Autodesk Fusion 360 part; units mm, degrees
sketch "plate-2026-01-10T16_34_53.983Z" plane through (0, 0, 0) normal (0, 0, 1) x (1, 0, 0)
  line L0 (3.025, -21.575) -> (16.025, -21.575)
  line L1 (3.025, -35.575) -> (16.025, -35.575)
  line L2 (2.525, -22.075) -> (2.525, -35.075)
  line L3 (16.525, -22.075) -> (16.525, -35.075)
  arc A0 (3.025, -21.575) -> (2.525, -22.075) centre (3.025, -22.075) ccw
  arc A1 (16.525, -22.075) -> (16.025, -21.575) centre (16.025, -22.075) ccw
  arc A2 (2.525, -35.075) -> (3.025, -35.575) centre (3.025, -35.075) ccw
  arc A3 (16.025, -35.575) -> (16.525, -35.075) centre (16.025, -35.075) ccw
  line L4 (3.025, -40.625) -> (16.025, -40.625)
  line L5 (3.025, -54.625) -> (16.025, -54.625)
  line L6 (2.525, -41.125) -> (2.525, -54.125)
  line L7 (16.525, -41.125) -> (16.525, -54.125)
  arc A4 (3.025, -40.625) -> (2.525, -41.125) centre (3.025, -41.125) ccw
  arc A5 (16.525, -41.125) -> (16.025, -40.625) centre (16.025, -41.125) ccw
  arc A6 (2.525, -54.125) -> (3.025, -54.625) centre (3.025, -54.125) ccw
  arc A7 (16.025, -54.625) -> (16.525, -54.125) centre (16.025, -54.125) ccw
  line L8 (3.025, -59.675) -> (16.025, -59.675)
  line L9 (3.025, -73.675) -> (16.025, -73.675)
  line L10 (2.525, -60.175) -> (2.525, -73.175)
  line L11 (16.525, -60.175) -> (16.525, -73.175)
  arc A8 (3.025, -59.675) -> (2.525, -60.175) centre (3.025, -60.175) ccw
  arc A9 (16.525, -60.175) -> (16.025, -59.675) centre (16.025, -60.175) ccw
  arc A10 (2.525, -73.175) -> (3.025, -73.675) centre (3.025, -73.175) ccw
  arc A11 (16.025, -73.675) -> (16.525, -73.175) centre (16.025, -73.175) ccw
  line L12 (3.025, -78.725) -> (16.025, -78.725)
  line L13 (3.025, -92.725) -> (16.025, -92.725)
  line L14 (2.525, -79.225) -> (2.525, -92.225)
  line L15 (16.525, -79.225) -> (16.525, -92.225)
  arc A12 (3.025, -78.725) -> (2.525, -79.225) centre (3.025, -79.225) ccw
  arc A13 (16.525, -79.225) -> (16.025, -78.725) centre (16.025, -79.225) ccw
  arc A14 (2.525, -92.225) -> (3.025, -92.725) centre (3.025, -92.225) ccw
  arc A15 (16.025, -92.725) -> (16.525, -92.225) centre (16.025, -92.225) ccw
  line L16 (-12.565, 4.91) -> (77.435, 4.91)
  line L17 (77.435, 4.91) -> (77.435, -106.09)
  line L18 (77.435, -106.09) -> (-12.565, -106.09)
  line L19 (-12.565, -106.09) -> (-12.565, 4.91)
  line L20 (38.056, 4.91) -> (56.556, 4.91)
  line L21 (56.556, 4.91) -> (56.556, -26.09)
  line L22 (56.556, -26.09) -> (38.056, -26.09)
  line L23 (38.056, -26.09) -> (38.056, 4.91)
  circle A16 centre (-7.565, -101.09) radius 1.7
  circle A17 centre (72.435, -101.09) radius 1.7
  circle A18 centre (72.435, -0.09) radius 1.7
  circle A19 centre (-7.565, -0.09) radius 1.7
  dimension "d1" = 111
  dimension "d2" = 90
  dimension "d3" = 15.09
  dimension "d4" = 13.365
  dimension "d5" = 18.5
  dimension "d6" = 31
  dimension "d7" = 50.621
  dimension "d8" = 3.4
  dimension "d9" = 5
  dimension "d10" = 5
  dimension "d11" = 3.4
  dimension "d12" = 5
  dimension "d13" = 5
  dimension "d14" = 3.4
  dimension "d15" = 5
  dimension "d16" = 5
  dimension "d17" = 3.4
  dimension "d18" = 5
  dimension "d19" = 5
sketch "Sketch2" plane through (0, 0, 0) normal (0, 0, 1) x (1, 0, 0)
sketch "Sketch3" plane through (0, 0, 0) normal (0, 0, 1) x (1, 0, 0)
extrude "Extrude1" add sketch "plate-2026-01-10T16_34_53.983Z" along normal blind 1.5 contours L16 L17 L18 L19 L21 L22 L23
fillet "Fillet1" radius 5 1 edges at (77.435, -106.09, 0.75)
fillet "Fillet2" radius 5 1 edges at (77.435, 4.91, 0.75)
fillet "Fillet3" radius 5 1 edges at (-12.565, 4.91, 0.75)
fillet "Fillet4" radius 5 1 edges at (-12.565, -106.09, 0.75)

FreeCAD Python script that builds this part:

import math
import FreeCAD as App
import Part
import Sketcher
from FreeCAD import Vector


def edges_at(feature, points):
    """Names of the edges that pass closest to the given points."""
    edges = feature.Shape.Edges
    near = lambda p: min(range(len(edges)), key=lambda i: edges[i].distToShape(Part.Vertex(*p))[0])
    return sorted({f"Edge{near(p) + 1}" for p in points})


def add_polygon(sketch, points):
    """Adds a closed chain of lines whose ends are joined by coincident constraints."""
    first, n = sketch.GeometryCount, len(points)
    for a, b in zip(points, points[1:] + points[:1]):
        sketch.addGeometry(Part.LineSegment(App.Vector(*a, 0), App.Vector(*b, 0)), False)
    for i in range(n):
        sketch.addConstraint(Sketcher.Constraint("Coincident", first + i, 2, first + (i + 1) % n, 1))

doc = App.newDocument("Part")
params = doc.addObject("Spreadsheet::Sheet", "Params")
for row, (alias, value) in enumerate([
    ("sketch1_diameter", "3.4 mm"),
    ("sketch1_width", "90 mm"),
    ("sketch1_height", "111 mm"),
    ("sketch1_height2", "31 mm"),
    ("sketch1_width2", "18.5 mm"),
    ("pad1_length", "1.5 mm"),
    ("fillet_radius", "5 mm"),
    ("fillet2_radius", "5 mm"),
    ("fillet3_radius", "5 mm"),
    ("fillet4_radius", "5 mm"),
], start=1):
    params.set(f"A{row}", alias)
    params.set(f"B{row}", "=" + value)
    params.setAlias(f"B{row}", alias)

body = doc.addObject("PartDesign::Body", "Body")

# Sketch on XY plane
sketch1 = doc.addObject("Sketcher::SketchObject", "Sketch")
body.addObject(sketch1)
sketch1.AttachmentSupport = (doc.XY_Plane, [""])
sketch1.MapMode = "FlatFace"
add_polygon(sketch1, [(38.1, 4.9), (-12.6, 4.9), (-12.6, -106.1), (77.4, -106.1), (77.4, 4.9), (56.6, 4.9), (56.6, -26.1), (38.1, -26.1)])  # lines 0-7
sketch1.addGeometry(Part.Circle(Vector(-7.6, -101.1, 0), Vector(0, 0, 1), 1.7), False)  # 8
sketch1.addGeometry(Part.ArcOfCircle(Part.Circle(Vector(3, -79.2, 0), Vector(0, 0, 1), 0.5), math.radians(90), math.radians(180)), False)  # 9
sketch1.addGeometry(Part.LineSegment(Vector(3, -78.7, 0), Vector(16, -78.7, 0)), False)  # 10
sketch1.addGeometry(Part.ArcOfCircle(Part.Circle(Vector(16, -79.2, 0), Vector(0, 0, 1), 0.5), math.radians(0), math.radians(90)), False)  # 11
sketch1.addGeometry(Part.LineSegment(Vector(16.5, -79.2, 0), Vector(16.5, -92.2, 0)), False)  # 12
sketch1.addGeometry(Part.ArcOfCircle(Part.Circle(Vector(16, -92.2, 0), Vector(0, 0, 1), 0.5), math.radians(-90), math.radians(0)), False)  # 13
sketch1.addGeometry(Part.LineSegment(Vector(16, -92.7, 0), Vector(3, -92.7, 0)), False)  # 14
sketch1.addGeometry(Part.ArcOfCircle(Part.Circle(Vector(3, -92.2, 0), Vector(0, 0, 1), 0.5), math.radians(180), math.radians(270)), False)  # 15
sketch1.addGeometry(Part.LineSegment(Vector(2.5, -92.2, 0), Vector(2.5, -79.2, 0)), False)  # 16
sketch1.addGeometry(Part.ArcOfCircle(Part.Circle(Vector(3, -60.2, 0), Vector(0, 0, 1), 0.5), math.radians(90), math.radians(180)), False)  # 17
sketch1.addGeometry(Part.LineSegment(Vector(3, -59.7, 0), Vector(16, -59.7, 0)), False)  # 18
sketch1.addGeometry(Part.ArcOfCircle(Part.Circle(Vector(16, -60.2, 0), Vector(0, 0, 1), 0.5), math.radians(0), math.radians(90)), False)  # 19
sketch1.addGeometry(Part.LineSegment(Vector(16.5, -60.2, 0), Vector(16.5, -73.2, 0)), False)  # 20
sketch1.addGeometry(Part.ArcOfCircle(Part.Circle(Vector(16, -73.2, 0), Vector(0, 0, 1), 0.5), math.radians(-90), math.radians(0)), False)  # 21
sketch1.addGeometry(Part.LineSegment(Vector(16, -73.7, 0), Vector(3, -73.7, 0)), False)  # 22
sketch1.addGeometry(Part.ArcOfCircle(Part.Circle(Vector(3, -73.2, 0), Vector(0, 0, 1), 0.5), math.radians(180), math.radians(270)), False)  # 23
sketch1.addGeometry(Part.LineSegment(Vector(2.5, -73.2, 0), Vector(2.5, -60.2, 0)), False)  # 24
sketch1.addGeometry(Part.Circle(Vector(72.4, -101.1, 0), Vector(0, 0, 1), 1.7), False)  # 25
sketch1.addGeometry(Part.ArcOfCircle(Part.Circle(Vector(3, -41.1, 0), Vector(0, 0, 1), 0.5), math.radians(90), math.radians(180)), False)  # 26
sketch1.addGeometry(Part.LineSegment(Vector(3, -40.6, 0), Vector(16, -40.6, 0)), False)  # 27
sketch1.addGeometry(Part.ArcOfCircle(Part.Circle(Vector(16, -41.1, 0), Vector(0, 0, 1), 0.5), math.radians(0), math.radians(90)), False)  # 28
sketch1.addGeometry(Part.LineSegment(Vector(16.5, -41.1, 0), Vector(16.5, -54.1, 0)), False)  # 29
sketch1.addGeometry(Part.ArcOfCircle(Part.Circle(Vector(16, -54.1, 0), Vector(0, 0, 1), 0.5), math.radians(-90), math.radians(0)), False)  # 30
sketch1.addGeometry(Part.LineSegment(Vector(16, -54.6, 0), Vector(3, -54.6, 0)), False)  # 31
sketch1.addGeometry(Part.ArcOfCircle(Part.Circle(Vector(3, -54.1, 0), Vector(0, 0, 1), 0.5), math.radians(180), math.radians(270)), False)  # 32
sketch1.addGeometry(Part.LineSegment(Vector(2.5, -54.1, 0), Vector(2.5, -41.1, 0)), False)  # 33
sketch1.addGeometry(Part.ArcOfCircle(Part.Circle(Vector(3, -22.1, 0), Vector(0, 0, 1), 0.5), math.radians(90), math.radians(180)), False)  # 34
sketch1.addGeometry(Part.LineSegment(Vector(3, -21.6, 0), Vector(16, -21.6, 0)), False)  # 35
sketch1.addGeometry(Part.ArcOfCircle(Part.Circle(Vector(16, -22.1, 0), Vector(0, 0, 1), 0.5), math.radians(0), math.radians(90)), False)  # 36
sketch1.addGeometry(Part.LineSegment(Vector(16.5, -22.1, 0), Vector(16.5, -35.1, 0)), False)  # 37
sketch1.addGeometry(Part.ArcOfCircle(Part.Circle(Vector(16, -35.1, 0), Vector(0, 0, 1), 0.5), math.radians(-90), math.radians(0)), False)  # 38
sketch1.addGeometry(Part.LineSegment(Vector(16, -35.6, 0), Vector(3, -35.6, 0)), False)  # 39
sketch1.addGeometry(Part.ArcOfCircle(Part.Circle(Vector(3, -35.1, 0), Vector(0, 0, 1), 0.5), math.radians(180), math.radians(270)), False)  # 40
sketch1.addGeometry(Part.LineSegment(Vector(2.5, -35.1, 0), Vector(2.5, -22.1, 0)), False)  # 41
sketch1.addGeometry(Part.Circle(Vector(-7.6, -0.1, 0), Vector(0, 0, 1), 1.7), False)  # 42
sketch1.addGeometry(Part.Circle(Vector(72.4, -0.1, 0), Vector(0, 0, 1), 1.7), False)  # 43
sketch1.addConstraint([
    Sketcher.Constraint("Tangent", 9, 1, 10, 1),
    Sketcher.Constraint("Tangent", 10, 2, 11, 2),
    Sketcher.Constraint("Tangent", 11, 1, 12, 1),
    Sketcher.Constraint("Tangent", 12, 2, 13, 2),
    Sketcher.Constraint("Tangent", 13, 1, 14, 1),
    Sketcher.Constraint("Tangent", 14, 2, 15, 2),
    Sketcher.Constraint("Tangent", 15, 1, 16, 1),
    Sketcher.Constraint("Tangent", 16, 2, 9, 2),
    Sketcher.Constraint("Tangent", 17, 1, 18, 1),
    Sketcher.Constraint("Tangent", 18, 2, 19, 2),
    Sketcher.Constraint("Tangent", 19, 1, 20, 1),
    Sketcher.Constraint("Tangent", 20, 2, 21, 2),
    Sketcher.Constraint("Tangent", 21, 1, 22, 1),
    Sketcher.Constraint("Tangent", 22, 2, 23, 2),
    Sketcher.Constraint("Tangent", 23, 1, 24, 1),
    Sketcher.Constraint("Tangent", 24, 2, 17, 2),
    Sketcher.Constraint("Tangent", 26, 1, 27, 1),
    Sketcher.Constraint("Tangent", 27, 2, 28, 2),
    Sketcher.Constraint("Tangent", 28, 1, 29, 1),
    Sketcher.Constraint("Tangent", 29, 2, 30, 2),
    Sketcher.Constraint("Tangent", 30, 1, 31, 1),
    Sketcher.Constraint("Tangent", 31, 2, 32, 2),
    Sketcher.Constraint("Tangent", 32, 1, 33, 1),
    Sketcher.Constraint("Tangent", 33, 2, 26, 2),
    Sketcher.Constraint("Tangent", 34, 1, 35, 1),
    Sketcher.Constraint("Tangent", 35, 2, 36, 2),
    Sketcher.Constraint("Tangent", 36, 1, 37, 1),
    Sketcher.Constraint("Tangent", 37, 2, 38, 2),
    Sketcher.Constraint("Tangent", 38, 1, 39, 1),
    Sketcher.Constraint("Tangent", 39, 2, 40, 2),
    Sketcher.Constraint("Tangent", 40, 1, 41, 1),
    Sketcher.Constraint("Tangent", 41, 2, 34, 2),
    Sketcher.Constraint("Horizontal", 0),
    Sketcher.Constraint("Vertical", 1),
    Sketcher.Constraint("Horizontal", 2),
    Sketcher.Constraint("Vertical", 3),
    Sketcher.Constraint("Horizontal", 4),
    Sketcher.Constraint("Vertical", 5),
    Sketcher.Constraint("Horizontal", 6),
    Sketcher.Constraint("Vertical", 7),
    Sketcher.Constraint("Horizontal", 10),
    Sketcher.Constraint("Vertical", 12),
    Sketcher.Constraint("Horizontal", 14),
    Sketcher.Constraint("Vertical", 16),
    Sketcher.Constraint("Horizontal", 18),
    Sketcher.Constraint("Vertical", 20),
    Sketcher.Constraint("Horizontal", 22),
    Sketcher.Constraint("Vertical", 24),
    Sketcher.Constraint("Horizontal", 27),
    Sketcher.Constraint("Vertical", 29),
    Sketcher.Constraint("Horizontal", 31),
    Sketcher.Constraint("Vertical", 33),
    Sketcher.Constraint("Horizontal", 35),
    Sketcher.Constraint("Vertical", 37),
    Sketcher.Constraint("Horizontal", 39),
    Sketcher.Constraint("Vertical", 41),
    Sketcher.Constraint("Equal", 9, 11),
    Sketcher.Constraint("Equal", 11, 13),
    Sketcher.Constraint("Equal", 13, 15),
    Sketcher.Constraint("Equal", 15, 17),
    Sketcher.Constraint("Equal", 17, 19),
    Sketcher.Constraint("Equal", 19, 21),
    Sketcher.Constraint("Equal", 21, 23),
    Sketcher.Constraint("Equal", 8, 25),
    Sketcher.Constraint("Equal", 23, 26),
    Sketcher.Constraint("Equal", 26, 28),
    Sketcher.Constraint("Equal", 28, 30),
    Sketcher.Constraint("Equal", 30, 32),
    Sketcher.Constraint("Equal", 32, 34),
    Sketcher.Constraint("Equal", 34, 36),
    Sketcher.Constraint("Equal", 36, 38),
    Sketcher.Constraint("Equal", 38, 40),
    Sketcher.Constraint("Equal", 25, 42),
    Sketcher.Constraint("Equal", 42, 43),
    Sketcher.Constraint("Horizontal", 8, 3, 25, 3),
    Sketcher.Constraint("Horizontal", 42, 3, 43, 3),
    Sketcher.Constraint("Horizontal", 0, 2, 3, 2),
    Sketcher.Constraint("Vertical", 15, 3, 17, 3),
    Sketcher.Constraint("Vertical", 13, 3, 19, 3),
    Sketcher.Constraint("Vertical", 23, 3, 26, 3),
    Sketcher.Constraint("Vertical", 21, 3, 28, 3),
    Sketcher.Constraint("Vertical", 32, 3, 34, 3),
    Sketcher.Constraint("Vertical", 30, 3, 36, 3),
    Sketcher.Constraint("Vertical", 8, 3, 42, 3),
    Sketcher.Constraint("Vertical", 25, 3, 43, 3),
    Sketcher.Constraint("Equal", 39, 12),
    Sketcher.Constraint("Equal", 16, 20),
    Sketcher.Constraint("Equal", 24, 29),
    Sketcher.Constraint("Equal", 33, 37),
    Sketcher.Constraint("Diameter", 8, 3.4),
    Sketcher.Constraint("DistanceX", 2, 1, 2, 2, 90.0),
    Sketcher.Constraint("DistanceY", 1, 2, 1, 1, 111.0),
    Sketcher.Constraint("DistanceY", 5, 2, 5, 1, 31.0),
    Sketcher.Constraint("DistanceX", 6, 2, 6, 1, 18.5),
    Sketcher.Constraint("DistanceX", 0, 2, 42, 3, 5.0),
    Sketcher.Constraint("DistanceY", 42, 3, 0, 2, 5.0),
    Sketcher.Constraint("DistanceY", 1, 2, 8, 3, 5.0),
    Sketcher.Constraint("DistanceX", 25, 3, 2, 2, 5.0),
    Sketcher.Constraint("Radius", 9, 0.5),
    Sketcher.Constraint("DistanceX", 0, 2, 0, 1, 50.621),
    Sketcher.Constraint("DistanceX", 10, 1, 10, 2, 13.0),
    Sketcher.Constraint("DistanceY", 9, 3, 26, 3, 38.1),
    Sketcher.Constraint("DistanceY", 17, 3, 34, 3, 38.1),
    Sketcher.Constraint("DistanceY", 8, 3, -1, 1, 101.09),
    Sketcher.Constraint("DistanceX", 8, 3, 9, 3, 10.59),
    Sketcher.Constraint("DistanceY", 9, 3, 17, 3, 19.05),
    Sketcher.Constraint("DistanceX", 8, 3, -1, 1, 7.565),
    Sketcher.Constraint("DistanceY", 9, 3, -1, 1, 79.225),
])
sketch1.setExpression("Constraints[97]", "Params.sketch1_diameter")
sketch1.setExpression("Constraints[98]", "Params.sketch1_width")
sketch1.setExpression("Constraints[99]", "Params.sketch1_height")
sketch1.setExpression("Constraints[100]", "Params.sketch1_height2")
sketch1.setExpression("Constraints[101]", "Params.sketch1_width2")
pad1 = doc.addObject("PartDesign::Pad", "Pad")
body.addObject(pad1)
pad1.Profile = sketch1
pad1.setExpression("Length", "Params.pad1_length")
doc.recompute()

fillet = doc.addObject("PartDesign::Fillet", "Fillet")
body.addObject(fillet)
fillet.Base = (pad1, edges_at(pad1, [(77.435, -106.09, 0.75)]))
fillet.setExpression("Radius", "Params.fillet_radius")
doc.recompute()

fillet2 = doc.addObject("PartDesign::Fillet", "Fillet001")
body.addObject(fillet2)
fillet2.Base = (fillet, edges_at(fillet, [(77.435, 4.91, 0.75)]))
fillet2.setExpression("Radius", "Params.fillet2_radius")
doc.recompute()

fillet3 = doc.addObject("PartDesign::Fillet", "Fillet002")
body.addObject(fillet3)
fillet3.Base = (fillet2, edges_at(fillet2, [(-12.565, 4.91, 0.75)]))
fillet3.setExpression("Radius", "Params.fillet3_radius")
doc.recompute()

fillet4 = doc.addObject("PartDesign::Fillet", "Fillet003")
body.addObject(fillet4)
fillet4.Base = (fillet3, edges_at(fillet3, [(-12.565, -106.09, 0.75)]))
fillet4.setExpression("Radius", "Params.fillet4_radius")

doc.recompute()
